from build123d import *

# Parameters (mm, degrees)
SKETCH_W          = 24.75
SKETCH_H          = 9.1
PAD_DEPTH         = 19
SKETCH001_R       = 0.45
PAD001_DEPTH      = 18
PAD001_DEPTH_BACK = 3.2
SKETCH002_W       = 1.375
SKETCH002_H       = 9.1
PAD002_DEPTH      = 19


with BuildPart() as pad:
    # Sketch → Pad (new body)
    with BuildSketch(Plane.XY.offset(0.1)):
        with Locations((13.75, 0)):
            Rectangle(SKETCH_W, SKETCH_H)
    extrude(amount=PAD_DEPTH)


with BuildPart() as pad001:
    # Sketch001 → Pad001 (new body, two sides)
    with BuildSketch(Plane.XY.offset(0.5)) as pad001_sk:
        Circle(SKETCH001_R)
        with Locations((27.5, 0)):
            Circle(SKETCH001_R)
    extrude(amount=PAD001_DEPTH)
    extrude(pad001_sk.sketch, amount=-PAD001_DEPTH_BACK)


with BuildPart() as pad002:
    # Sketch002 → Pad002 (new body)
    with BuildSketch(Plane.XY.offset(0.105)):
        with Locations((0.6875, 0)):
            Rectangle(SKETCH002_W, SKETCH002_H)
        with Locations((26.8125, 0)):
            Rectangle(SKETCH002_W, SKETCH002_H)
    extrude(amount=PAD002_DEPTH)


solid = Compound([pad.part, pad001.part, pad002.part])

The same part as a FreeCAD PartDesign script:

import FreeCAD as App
import Part
import Sketcher

V = App.Vector
Q = App.Units.Quantity

doc = App.newDocument("Part")
body = doc.addObject("PartDesign::Body", "Body")

sketch1 = body.newObject("Sketcher::SketchObject", "Sketch")
sketch1.AttachmentSupport = (doc.getObject("XY_Plane"), [""])
sketch1.MapMode = "FlatFace"
sketch1.AttachmentOffset = App.Placement(V(0, 0, 0.1), App.Rotation())
sketch1.addGeometry([
    Part.LineSegment(V(1, 5, 0), V(1, -5, 0)),
    Part.LineSegment(V(1, -5, 0), V(26, -5, 0)),
    Part.LineSegment(V(26, -5, 0), V(26, 5, 0)),
    Part.LineSegment(V(26, 5, 0), V(1, 5, 0)),
], False)
sketch1.addConstraint([
    Sketcher.Constraint("Coincident", 0, 2, 1, 1),
    Sketcher.Constraint("Coincident", 1, 2, 2, 1),
    Sketcher.Constraint("Coincident", 2, 2, 3, 1),
    Sketcher.Constraint("Coincident", 3, 2, 0, 1),
    Sketcher.Constraint("Vertical", 0),
    Sketcher.Constraint("Horizontal", 1),
    Sketcher.Constraint("Vertical", 2),
    Sketcher.Constraint("Horizontal", 3),
    Sketcher.Constraint("DistanceY", 0, 2, 0, 1, Q("9.1 mm")),
    Sketcher.Constraint("DistanceX", 1, 1, 1, 2, Q("24.75 mm")),
    Sketcher.Constraint("DistanceY", 0, 2, -1, 1, Q("4.55 mm")),
    Sketcher.Constraint("DistanceX", -1, 1, 0, 2, Q("1.375 mm")),
])
pad1 = body.newObject("PartDesign::Pad", "Pad")
pad1.Profile = sketch1
pad1.Length = 19
body2 = doc.addObject("PartDesign::Body", "Body001")
body2.AllowCompound = True

sketch2 = body2.newObject("Sketcher::SketchObject", "Sketch001")
sketch2.AttachmentSupport = (doc.getObject("XY_Plane001"), [""])
sketch2.MapMode = "FlatFace"
sketch2.AttachmentOffset = App.Placement(V(0, 0, 0.5), App.Rotation())
sketch2.addGeometry([
    Part.Circle(V(0, 0, 0), V(0, 0, 1), 0.45),
    Part.Circle(V(27.5, 0, 0), V(0, 0, 1), 0.45),
], False)
sketch2.addConstraint([
    Sketcher.Constraint("Coincident", 0, 3, -1, 1),
    Sketcher.Constraint("Equal", 0, 1),
    Sketcher.Constraint("PointOnObject", 1, 3, -1),
    Sketcher.Constraint("Diameter", 0, Q("0.9 mm")),
    Sketcher.Constraint("DistanceX", -1, 1, 1, 3, Q("27.5 mm")),
])
pad2 = body2.newObject("PartDesign::Pad", "Pad001")
pad2.Profile = sketch2
pad2.Type = "TwoLengths"
pad2.Length = 18
pad2.Length2 = 3.2
body3 = doc.addObject("PartDesign::Body", "Body002")
body3.AllowCompound = True

sketch3 = body3.newObject("Sketcher::SketchObject", "Sketch002")
sketch3.AttachmentSupport = (doc.getObject("XY_Plane002"), [""])
sketch3.MapMode = "FlatFace"
sketch3.AttachmentOffset = App.Placement(V(0, 0, 0.105), App.Rotation())
sketch3.addGeometry([
    Part.LineSegment(V(0, 4.5, 0), V(0, -4.5, 0)),
    Part.LineSegment(V(0, -4.5, 0), V(1.4, -4.5, 0)),
    Part.LineSegment(V(1.4, -4.5, 0), V(1.4, 4.5, 0)),
    Part.LineSegment(V(1.4, 4.5, 0), V(0, 4.5, 0)),
    Part.LineSegment(V(26.1, 4.5, 0), V(26.1, -4.5, 0)),
    Part.LineSegment(V(26.1, -4.5, 0), V(27.5, -4.5, 0)),
    Part.LineSegment(V(27.5, -4.5, 0), V(27.5, 4.5, 0)),
    Part.LineSegment(V(27.5, 4.5, 0), V(26.1, 4.5, 0)),
], False)
sketch3.addConstraint([
    Sketcher.Constraint("Coincident", 0, 2, 1, 1),
    Sketcher.Constraint("Coincident", 1, 2, 2, 1),
    Sketcher.Constraint("Coincident", 2, 2, 3, 1),
    Sketcher.Constraint("Coincident", 3, 2, 0, 1),
    Sketcher.Constraint("Coincident", 4, 2, 5, 1),
    Sketcher.Constraint("Coincident", 5, 2, 6, 1),
    Sketcher.Constraint("Coincident", 6, 2, 7, 1),
    Sketcher.Constraint("Coincident", 7, 2, 4, 1),
    Sketcher.Constraint("Vertical", 0),
    Sketcher.Constraint("Horizontal", 1),
    Sketcher.Constraint("Vertical", 2),
    Sketcher.Constraint("Horizontal", 3),
    Sketcher.Constraint("Vertical", 4),
    Sketcher.Constraint("Horizontal", 5),
    Sketcher.Constraint("Vertical", 6),
    Sketcher.Constraint("Horizontal", 7),
    Sketcher.Constraint("Symmetric", 0, 2, 3, 2, -1, 1),
    Sketcher.Constraint("Horizontal", 1, 2, 4, 2),
    Sketcher.Constraint("Horizontal", 3, 2, 6, 2),
    Sketcher.Constraint("Equal", 3, 5),
    Sketcher.Constraint("DistanceY", 0, 2, 0, 1, Q("9.1 mm")),
    Sketcher.Constraint("DistanceX", -1, 1, 5, 2, Q("27.5 mm")),
    Sketcher.Constraint("DistanceX", 1, 1, 1, 2, Q("1.375 mm")),
])
pad3 = body3.newObject("PartDesign::Pad", "Pad002")
pad3.Profile = sketch3
pad3.Length = 19

doc.recompute()
